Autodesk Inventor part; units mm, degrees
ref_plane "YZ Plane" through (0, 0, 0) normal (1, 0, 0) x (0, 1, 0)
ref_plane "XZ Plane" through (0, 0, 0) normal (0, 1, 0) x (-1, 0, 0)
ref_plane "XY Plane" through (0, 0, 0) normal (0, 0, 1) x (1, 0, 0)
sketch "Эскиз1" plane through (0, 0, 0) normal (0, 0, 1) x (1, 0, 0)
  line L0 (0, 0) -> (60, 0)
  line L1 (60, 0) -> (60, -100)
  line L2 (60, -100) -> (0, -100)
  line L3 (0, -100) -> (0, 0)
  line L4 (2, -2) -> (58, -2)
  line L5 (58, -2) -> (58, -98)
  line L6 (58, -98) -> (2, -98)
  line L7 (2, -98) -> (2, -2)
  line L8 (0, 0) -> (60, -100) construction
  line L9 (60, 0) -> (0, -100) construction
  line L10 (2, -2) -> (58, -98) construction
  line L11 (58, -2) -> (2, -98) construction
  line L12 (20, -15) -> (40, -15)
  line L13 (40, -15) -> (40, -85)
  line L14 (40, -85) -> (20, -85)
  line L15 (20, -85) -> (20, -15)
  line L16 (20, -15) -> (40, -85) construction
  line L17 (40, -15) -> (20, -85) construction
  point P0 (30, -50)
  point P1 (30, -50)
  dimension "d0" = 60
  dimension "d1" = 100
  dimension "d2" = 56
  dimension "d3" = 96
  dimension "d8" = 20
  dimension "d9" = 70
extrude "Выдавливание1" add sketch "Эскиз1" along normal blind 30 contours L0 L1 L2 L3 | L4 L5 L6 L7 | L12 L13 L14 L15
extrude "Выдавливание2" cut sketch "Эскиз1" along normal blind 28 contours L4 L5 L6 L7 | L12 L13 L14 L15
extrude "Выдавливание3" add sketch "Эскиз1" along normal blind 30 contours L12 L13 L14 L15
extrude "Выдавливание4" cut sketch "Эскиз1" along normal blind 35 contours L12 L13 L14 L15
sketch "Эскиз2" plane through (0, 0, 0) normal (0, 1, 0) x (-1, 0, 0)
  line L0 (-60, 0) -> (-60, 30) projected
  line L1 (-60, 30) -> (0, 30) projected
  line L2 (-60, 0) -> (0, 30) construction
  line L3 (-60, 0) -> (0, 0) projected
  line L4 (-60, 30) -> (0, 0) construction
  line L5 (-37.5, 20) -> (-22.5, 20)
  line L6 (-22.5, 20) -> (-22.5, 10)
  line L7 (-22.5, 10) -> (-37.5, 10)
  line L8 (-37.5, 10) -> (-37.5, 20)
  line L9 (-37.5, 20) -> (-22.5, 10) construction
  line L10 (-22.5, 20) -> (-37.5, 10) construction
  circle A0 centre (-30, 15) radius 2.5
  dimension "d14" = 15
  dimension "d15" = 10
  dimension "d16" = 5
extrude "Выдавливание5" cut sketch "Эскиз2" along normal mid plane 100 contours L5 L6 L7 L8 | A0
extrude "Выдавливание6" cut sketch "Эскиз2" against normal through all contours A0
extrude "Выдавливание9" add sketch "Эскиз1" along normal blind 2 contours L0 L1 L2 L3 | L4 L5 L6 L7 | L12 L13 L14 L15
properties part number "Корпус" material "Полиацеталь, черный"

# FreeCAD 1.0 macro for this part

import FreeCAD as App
import Part
import Sketcher

V = App.Vector
Q = App.Units.Quantity


def add_polygon(sketch, points):
    """Adds a closed chain of lines whose ends are joined by coincident constraints."""
    first, n = sketch.GeometryCount, len(points)
    for a, b in zip(points, points[1:] + points[:1]):
        sketch.addGeometry(Part.LineSegment(App.Vector(*a, 0), App.Vector(*b, 0)), False)
    for i in range(n):
        sketch.addConstraint(Sketcher.Constraint("Coincident", first + i, 2, first + (i + 1) % n, 1))

doc = App.newDocument("Part")
body = doc.addObject("PartDesign::Body", "Body")

# Sketch on XY plane
sketch1 = body.newObject("Sketcher::SketchObject", "Sketch")
sketch1.AttachmentSupport = (doc.getObject("XY_Plane"), [""])
sketch1.MapMode = "FlatFace"
add_polygon(sketch1, [(60, 0), (0, 0), (0, -100), (60, -100)])  # lines 0-3
sketch1.addConstraint(Sketcher.Constraint("Horizontal", 0))
sketch1.addConstraint(Sketcher.Constraint("Vertical", 1))
sketch1.addConstraint(Sketcher.Constraint("Horizontal", 2))
sketch1.addConstraint(Sketcher.Constraint("Vertical", 3))
sketch1.addConstraint(Sketcher.Constraint("Coincident", 0, 2, -1, 1))
sketch1.addConstraint(Sketcher.Constraint("DistanceX", 0, 2, 0, 1, Q("60 mm")))
sketch1.addConstraint(Sketcher.Constraint("DistanceY", 1, 2, 1, 1, Q("100 mm")))
pad1 = body.newObject("PartDesign::Pad", "Pad")
pad1.Profile = sketch1
pad1.Length = 30

# Sketch on XY plane
sketch2 = body.newObject("Sketcher::SketchObject", "Sketch001")
sketch2.AttachmentSupport = (doc.getObject("XY_Plane"), [""])
sketch2.MapMode = "FlatFace"
add_polygon(sketch2, [(58, -2), (2, -2), (2, -98), (58, -98)])  # lines 0-3
sketch2.addConstraint(Sketcher.Constraint("Horizontal", 0))
sketch2.addConstraint(Sketcher.Constraint("Vertical", 1))
sketch2.addConstraint(Sketcher.Constraint("Horizontal", 2))
sketch2.addConstraint(Sketcher.Constraint("Vertical", 3))
sketch2.addConstraint(Sketcher.Constraint("DistanceX", 0, 2, 0, 1, Q("56 mm")))
sketch2.addConstraint(Sketcher.Constraint("DistanceY", 1, 2, 1, 1, Q("96 mm")))
sketch2.addConstraint(Sketcher.Constraint("DistanceX", -1, 1, 0, 2, Q("2 mm")))
sketch2.addConstraint(Sketcher.Constraint("DistanceY", 0, 2, -1, 1, Q("2 mm")))
pocket1 = body.newObject("PartDesign::Pocket", "Pocket")
pocket1.Profile = sketch2
pocket1.Length = 28
pocket1.Reversed = True

# Sketch on XY plane
sketch3 = body.newObject("Sketcher::SketchObject", "Sketch002")
sketch3.AttachmentSupport = (doc.getObject("XY_Plane"), [""])
sketch3.MapMode = "FlatFace"
add_polygon(sketch3, [(40, -15), (20, -15), (20, -85), (40, -85)])  # lines 0-3
sketch3.addConstraint(Sketcher.Constraint("Horizontal", 0))
sketch3.addConstraint(Sketcher.Constraint("Vertical", 1))
sketch3.addConstraint(Sketcher.Constraint("Horizontal", 2))
sketch3.addConstraint(Sketcher.Constraint("Vertical", 3))
sketch3.addConstraint(Sketcher.Constraint("DistanceX", 0, 2, 0, 1, Q("20 mm")))
sketch3.addConstraint(Sketcher.Constraint("DistanceY", 1, 2, 1, 1, Q("70 mm")))
sketch3.addConstraint(Sketcher.Constraint("DistanceX", -1, 1, 0, 2, Q("20 mm")))
sketch3.addConstraint(Sketcher.Constraint("DistanceY", 0, 2, -1, 1, Q("15 mm")))
pad2 = body.newObject("PartDesign::Pad", "Pad001")
pad2.Profile = sketch3
pad2.Length = 30

# Sketch on XY plane
sketch4 = body.newObject("Sketcher::SketchObject", "Sketch003")
sketch4.AttachmentSupport = (doc.getObject("XY_Plane"), [""])
sketch4.MapMode = "FlatFace"
add_polygon(sketch4, [(40, -15), (20, -15), (20, -85), (40, -85)])  # lines 0-3
sketch4.addConstraint(Sketcher.Constraint("Horizontal", 0))
sketch4.addConstraint(Sketcher.Constraint("Vertical", 1))
sketch4.addConstraint(Sketcher.Constraint("Horizontal", 2))
sketch4.addConstraint(Sketcher.Constraint("Vertical", 3))
sketch4.addConstraint(Sketcher.Constraint("DistanceX", 0, 2, 0, 1, Q("20 mm")))
sketch4.addConstraint(Sketcher.Constraint("DistanceY", 1, 2, 1, 1, Q("70 mm")))
sketch4.addConstraint(Sketcher.Constraint("DistanceX", -1, 1, 0, 2, Q("20 mm")))
sketch4.addConstraint(Sketcher.Constraint("DistanceY", 0, 2, -1, 1, Q("15 mm")))
pocket2 = body.newObject("PartDesign::Pocket", "Pocket001")
pocket2.Profile = sketch4
pocket2.Length = 35
pocket2.Reversed = True

# Sketch on XZ plane
sketch5 = body.newObject("Sketcher::SketchObject", "Sketch004")
sketch5.AttachmentSupport = (doc.getObject("XZ_Plane"), [""])
sketch5.MapMode = "FlatFace"
add_polygon(sketch5, [(22.5, 20), (37.5, 20), (37.5, 10), (22.5, 10)])  # lines 0-3
sketch5.addConstraint(Sketcher.Constraint("Horizontal", 0))
sketch5.addConstraint(Sketcher.Constraint("Vertical", 1))
sketch5.addConstraint(Sketcher.Constraint("Horizontal", 2))
sketch5.addConstraint(Sketcher.Constraint("Vertical", 3))
sketch5.addConstraint(Sketcher.Constraint("DistanceX", 0, 1, 0, 2, Q("15 mm")))
sketch5.addConstraint(Sketcher.Constraint("DistanceY", 1, 2, 1, 1, Q("10 mm")))
sketch5.addConstraint(Sketcher.Constraint("DistanceY", -1, 1, 1, 2, Q("10 mm")))
sketch5.addConstraint(Sketcher.Constraint("DistanceX", -1, 1, 0, 2, Q("37.5 mm")))
pocket3 = body.newObject("PartDesign::Pocket", "Pocket002")
pocket3.Profile = sketch5
pocket3.Length = 100
pocket3.Midplane = True

# Sketch on XZ plane
sketch6 = body.newObject("Sketcher::SketchObject", "Sketch005")
sketch6.AttachmentSupport = (doc.getObject("XZ_Plane"), [""])
sketch6.MapMode = "FlatFace"
sketch6.addGeometry(Part.Circle(V(30, 15, 0), V(0, 0, 1), 2.5), False)
sketch6.addConstraint(Sketcher.Constraint("Diameter", 0, Q("5 mm")))
sketch6.addConstraint(Sketcher.Constraint("DistanceY", -1, 1, 0, 3, Q("15 mm")))
sketch6.addConstraint(Sketcher.Constraint("DistanceX", -1, 1, 0, 3, Q("30 mm")))
pocket4 = body.newObject("PartDesign::Pocket", "Pocket003")
pocket4.Profile = sketch6
pocket4.Type = "ThroughAll"
pocket4.Reversed = True

# Sketch on XY plane
sketch7 = body.newObject("Sketcher::SketchObject", "Sketch006")
sketch7.AttachmentSupport = (doc.getObject("XY_Plane"), [""])
sketch7.MapMode = "FlatFace"
add_polygon(sketch7, [(60, 0), (0, 0), (0, -100), (60, -100)])  # lines 0-3
sketch7.addConstraint(Sketcher.Constraint("Horizontal", 0))
sketch7.addConstraint(Sketcher.Constraint("Vertical", 1))
sketch7.addConstraint(Sketcher.Constraint("Horizontal", 2))
sketch7.addConstraint(Sketcher.Constraint("Vertical", 3))
sketch7.addConstraint(Sketcher.Constraint("Coincident", 0, 2, -1, 1))
sketch7.addConstraint(Sketcher.Constraint("DistanceX", 0, 2, 0, 1, Q("60 mm")))
sketch7.addConstraint(Sketcher.Constraint("DistanceY", 1, 2, 1, 1, Q("100 mm")))
pad3 = body.newObject("PartDesign::Pad", "Pad002")
pad3.Profile = sketch7
pad3.Length = 2

doc.recompute()
